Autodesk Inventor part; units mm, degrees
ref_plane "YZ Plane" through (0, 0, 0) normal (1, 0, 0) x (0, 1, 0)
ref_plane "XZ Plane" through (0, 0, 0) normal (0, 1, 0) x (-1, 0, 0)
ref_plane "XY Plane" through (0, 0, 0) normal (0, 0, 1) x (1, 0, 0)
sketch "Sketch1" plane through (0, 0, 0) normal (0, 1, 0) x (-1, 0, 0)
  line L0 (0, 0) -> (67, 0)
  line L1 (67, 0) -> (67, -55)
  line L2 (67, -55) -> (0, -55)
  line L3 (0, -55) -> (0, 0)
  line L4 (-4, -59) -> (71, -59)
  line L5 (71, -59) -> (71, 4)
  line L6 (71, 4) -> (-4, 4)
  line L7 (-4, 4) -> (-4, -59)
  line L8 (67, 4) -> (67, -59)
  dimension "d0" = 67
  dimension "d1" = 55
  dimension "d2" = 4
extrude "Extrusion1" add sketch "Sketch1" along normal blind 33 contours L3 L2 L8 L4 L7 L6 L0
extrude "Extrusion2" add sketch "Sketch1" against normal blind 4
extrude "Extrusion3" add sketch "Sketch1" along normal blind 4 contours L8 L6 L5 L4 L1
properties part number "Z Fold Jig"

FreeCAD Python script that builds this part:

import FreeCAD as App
import Part
import Sketcher
from FreeCAD import Vector
Q = App.Units.Quantity

doc = App.newDocument("Part")
body = doc.addObject("PartDesign::Body", "Body")

# Sketch on XZ plane
sketch1 = doc.addObject("Sketcher::SketchObject", "Sketch")
body.addObject(sketch1)
sketch1.AttachmentSupport = (doc.XZ_Plane, [""])
sketch1.MapMode = "FlatFace"
sketch1.addGeometry([
    Part.LineSegment(Vector(0, -55, 0), Vector(0, 0, 0)),  # 0
    Part.LineSegment(Vector(0, 0, 0), Vector(-67, 0, 0)),  # 1
    Part.LineSegment(Vector(-67, 0, 0), Vector(-67, 4, 0)),  # 2
    Part.LineSegment(Vector(-67, 4, 0), Vector(4, 4, 0)),  # 3
    Part.LineSegment(Vector(4, 4, 0), Vector(4, -59, 0)),  # 4
    Part.LineSegment(Vector(4, -59, 0), Vector(-67, -59, 0)),  # 5
    Part.LineSegment(Vector(-67, -59, 0), Vector(-67, -55, 0)),  # 6
    Part.LineSegment(Vector(-67, -55, 0), Vector(0, -55, 0)),  # 7
], False)
sketch1.addConstraint([
    Sketcher.Constraint("Coincident", 0, 2, 1, 1),
    Sketcher.Constraint("Coincident", 1, 2, 2, 1),
    Sketcher.Constraint("Coincident", 2, 2, 3, 1),
    Sketcher.Constraint("Coincident", 3, 2, 4, 1),
    Sketcher.Constraint("Coincident", 4, 2, 5, 1),
    Sketcher.Constraint("Coincident", 5, 2, 6, 1),
    Sketcher.Constraint("Coincident", 6, 2, 7, 1),
    Sketcher.Constraint("Coincident", 7, 2, 0, 1),
    Sketcher.Constraint("Vertical", 0),
    Sketcher.Constraint("Horizontal", 1),
    Sketcher.Constraint("Vertical", 2),
    Sketcher.Constraint("Horizontal", 3),
    Sketcher.Constraint("Vertical", 4),
    Sketcher.Constraint("Horizontal", 5),
    Sketcher.Constraint("Vertical", 6),
    Sketcher.Constraint("Horizontal", 7),
    Sketcher.Constraint("Coincident", 0, 2, -1, 1),
    Sketcher.Constraint("Vertical", 2, 2, 5, 2),
    Sketcher.Constraint("Equal", 2, 6),
    Sketcher.Constraint("DistanceX", 1, 2, 1, 1, Q("67 mm")),
    Sketcher.Constraint("DistanceY", 0, 1, 0, 2, Q("55 mm")),
    Sketcher.Constraint("DistanceY", 2, 1, 2, 2, Q("4 mm")),
    Sketcher.Constraint("DistanceX", -1, 1, 3, 2, Q("4 mm")),
])
pad1 = doc.addObject("PartDesign::Pad", "Pad")
body.addObject(pad1)
pad1.Profile = sketch1
pad1.Length = 33
pad1.Reversed = True

# Sketch on XZ plane
sketch2 = doc.addObject("Sketcher::SketchObject", "Sketch001")
body.addObject(sketch2)
sketch2.AttachmentSupport = (doc.XZ_Plane, [""])
sketch2.MapMode = "FlatFace"
sketch2.addGeometry([
    Part.LineSegment(Vector(4, -59, 0), Vector(-71, -59, 0)),
    Part.LineSegment(Vector(-71, -59, 0), Vector(-71, 4, 0)),
    Part.LineSegment(Vector(-71, 4, 0), Vector(4, 4, 0)),
    Part.LineSegment(Vector(4, 4, 0), Vector(4, -59, 0)),
], False)
sketch2.addConstraint([
    Sketcher.Constraint("Coincident", 0, 2, 1, 1),
    Sketcher.Constraint("Coincident", 1, 2, 2, 1),
    Sketcher.Constraint("Coincident", 2, 2, 3, 1),
    Sketcher.Constraint("Coincident", 3, 2, 0, 1),
    Sketcher.Constraint("Horizontal", 0),
    Sketcher.Constraint("Vertical", 1),
    Sketcher.Constraint("Horizontal", 2),
    Sketcher.Constraint("Vertical", 3),
    Sketcher.Constraint("DistanceY", -1, 1, 1, 2, Q("4 mm")),
    Sketcher.Constraint("DistanceX", -1, 1, 2, 2, Q("4 mm")),
    Sketcher.Constraint("DistanceX", 0, 2, 0, 1, Q("75 mm")),
    Sketcher.Constraint("DistanceY", 1, 1, 1, 2, Q("63 mm")),
])
pad2 = doc.addObject("PartDesign::Pad", "Pad001")
body.addObject(pad2)
pad2.Profile = sketch2
pad2.Length = 4

# Sketch on XZ plane
sketch3 = doc.addObject("Sketcher::SketchObject", "Sketch002")
body.addObject(sketch3)
sketch3.AttachmentSupport = (doc.XZ_Plane, [""])
sketch3.MapMode = "FlatFace"
sketch3.addGeometry([
    Part.LineSegment(Vector(-67, 4, 0), Vector(-67, -59, 0)),
    Part.LineSegment(Vector(-67, -59, 0), Vector(-71, -59, 0)),
    Part.LineSegment(Vector(-71, -59, 0), Vector(-71, 4, 0)),
    Part.LineSegment(Vector(-71, 4, 0), Vector(-67, 4, 0)),
], False)
sketch3.addConstraint([
    Sketcher.Constraint("Coincident", 0, 2, 1, 1),
    Sketcher.Constraint("Coincident", 1, 2, 2, 1),
    Sketcher.Constraint("Coincident", 2, 2, 3, 1),
    Sketcher.Constraint("Coincident", 3, 2, 0, 1),
    Sketcher.Constraint("Vertical", 0),
    Sketcher.Constraint("Horizontal", 1),
    Sketcher.Constraint("Vertical", 2),
    Sketcher.Constraint("Horizontal", 3),
    Sketcher.Constraint("DistanceX", 1, 2, 1, 1, Q("4 mm")),
    Sketcher.Constraint("DistanceX", 0, 2, -1, 1, Q("67 mm")),
    Sketcher.Constraint("DistanceY", -1, 1, 2, 2, Q("4 mm")),
    Sketcher.Constraint("DistanceY", 0, 2, 0, 1, Q("63 mm")),
])
pad3 = doc.addObject("PartDesign::Pad", "Pad002")
body.addObject(pad3)
pad3.Profile = sketch3
pad3.Length = 4
pad3.Reversed = True

doc.recompute()
